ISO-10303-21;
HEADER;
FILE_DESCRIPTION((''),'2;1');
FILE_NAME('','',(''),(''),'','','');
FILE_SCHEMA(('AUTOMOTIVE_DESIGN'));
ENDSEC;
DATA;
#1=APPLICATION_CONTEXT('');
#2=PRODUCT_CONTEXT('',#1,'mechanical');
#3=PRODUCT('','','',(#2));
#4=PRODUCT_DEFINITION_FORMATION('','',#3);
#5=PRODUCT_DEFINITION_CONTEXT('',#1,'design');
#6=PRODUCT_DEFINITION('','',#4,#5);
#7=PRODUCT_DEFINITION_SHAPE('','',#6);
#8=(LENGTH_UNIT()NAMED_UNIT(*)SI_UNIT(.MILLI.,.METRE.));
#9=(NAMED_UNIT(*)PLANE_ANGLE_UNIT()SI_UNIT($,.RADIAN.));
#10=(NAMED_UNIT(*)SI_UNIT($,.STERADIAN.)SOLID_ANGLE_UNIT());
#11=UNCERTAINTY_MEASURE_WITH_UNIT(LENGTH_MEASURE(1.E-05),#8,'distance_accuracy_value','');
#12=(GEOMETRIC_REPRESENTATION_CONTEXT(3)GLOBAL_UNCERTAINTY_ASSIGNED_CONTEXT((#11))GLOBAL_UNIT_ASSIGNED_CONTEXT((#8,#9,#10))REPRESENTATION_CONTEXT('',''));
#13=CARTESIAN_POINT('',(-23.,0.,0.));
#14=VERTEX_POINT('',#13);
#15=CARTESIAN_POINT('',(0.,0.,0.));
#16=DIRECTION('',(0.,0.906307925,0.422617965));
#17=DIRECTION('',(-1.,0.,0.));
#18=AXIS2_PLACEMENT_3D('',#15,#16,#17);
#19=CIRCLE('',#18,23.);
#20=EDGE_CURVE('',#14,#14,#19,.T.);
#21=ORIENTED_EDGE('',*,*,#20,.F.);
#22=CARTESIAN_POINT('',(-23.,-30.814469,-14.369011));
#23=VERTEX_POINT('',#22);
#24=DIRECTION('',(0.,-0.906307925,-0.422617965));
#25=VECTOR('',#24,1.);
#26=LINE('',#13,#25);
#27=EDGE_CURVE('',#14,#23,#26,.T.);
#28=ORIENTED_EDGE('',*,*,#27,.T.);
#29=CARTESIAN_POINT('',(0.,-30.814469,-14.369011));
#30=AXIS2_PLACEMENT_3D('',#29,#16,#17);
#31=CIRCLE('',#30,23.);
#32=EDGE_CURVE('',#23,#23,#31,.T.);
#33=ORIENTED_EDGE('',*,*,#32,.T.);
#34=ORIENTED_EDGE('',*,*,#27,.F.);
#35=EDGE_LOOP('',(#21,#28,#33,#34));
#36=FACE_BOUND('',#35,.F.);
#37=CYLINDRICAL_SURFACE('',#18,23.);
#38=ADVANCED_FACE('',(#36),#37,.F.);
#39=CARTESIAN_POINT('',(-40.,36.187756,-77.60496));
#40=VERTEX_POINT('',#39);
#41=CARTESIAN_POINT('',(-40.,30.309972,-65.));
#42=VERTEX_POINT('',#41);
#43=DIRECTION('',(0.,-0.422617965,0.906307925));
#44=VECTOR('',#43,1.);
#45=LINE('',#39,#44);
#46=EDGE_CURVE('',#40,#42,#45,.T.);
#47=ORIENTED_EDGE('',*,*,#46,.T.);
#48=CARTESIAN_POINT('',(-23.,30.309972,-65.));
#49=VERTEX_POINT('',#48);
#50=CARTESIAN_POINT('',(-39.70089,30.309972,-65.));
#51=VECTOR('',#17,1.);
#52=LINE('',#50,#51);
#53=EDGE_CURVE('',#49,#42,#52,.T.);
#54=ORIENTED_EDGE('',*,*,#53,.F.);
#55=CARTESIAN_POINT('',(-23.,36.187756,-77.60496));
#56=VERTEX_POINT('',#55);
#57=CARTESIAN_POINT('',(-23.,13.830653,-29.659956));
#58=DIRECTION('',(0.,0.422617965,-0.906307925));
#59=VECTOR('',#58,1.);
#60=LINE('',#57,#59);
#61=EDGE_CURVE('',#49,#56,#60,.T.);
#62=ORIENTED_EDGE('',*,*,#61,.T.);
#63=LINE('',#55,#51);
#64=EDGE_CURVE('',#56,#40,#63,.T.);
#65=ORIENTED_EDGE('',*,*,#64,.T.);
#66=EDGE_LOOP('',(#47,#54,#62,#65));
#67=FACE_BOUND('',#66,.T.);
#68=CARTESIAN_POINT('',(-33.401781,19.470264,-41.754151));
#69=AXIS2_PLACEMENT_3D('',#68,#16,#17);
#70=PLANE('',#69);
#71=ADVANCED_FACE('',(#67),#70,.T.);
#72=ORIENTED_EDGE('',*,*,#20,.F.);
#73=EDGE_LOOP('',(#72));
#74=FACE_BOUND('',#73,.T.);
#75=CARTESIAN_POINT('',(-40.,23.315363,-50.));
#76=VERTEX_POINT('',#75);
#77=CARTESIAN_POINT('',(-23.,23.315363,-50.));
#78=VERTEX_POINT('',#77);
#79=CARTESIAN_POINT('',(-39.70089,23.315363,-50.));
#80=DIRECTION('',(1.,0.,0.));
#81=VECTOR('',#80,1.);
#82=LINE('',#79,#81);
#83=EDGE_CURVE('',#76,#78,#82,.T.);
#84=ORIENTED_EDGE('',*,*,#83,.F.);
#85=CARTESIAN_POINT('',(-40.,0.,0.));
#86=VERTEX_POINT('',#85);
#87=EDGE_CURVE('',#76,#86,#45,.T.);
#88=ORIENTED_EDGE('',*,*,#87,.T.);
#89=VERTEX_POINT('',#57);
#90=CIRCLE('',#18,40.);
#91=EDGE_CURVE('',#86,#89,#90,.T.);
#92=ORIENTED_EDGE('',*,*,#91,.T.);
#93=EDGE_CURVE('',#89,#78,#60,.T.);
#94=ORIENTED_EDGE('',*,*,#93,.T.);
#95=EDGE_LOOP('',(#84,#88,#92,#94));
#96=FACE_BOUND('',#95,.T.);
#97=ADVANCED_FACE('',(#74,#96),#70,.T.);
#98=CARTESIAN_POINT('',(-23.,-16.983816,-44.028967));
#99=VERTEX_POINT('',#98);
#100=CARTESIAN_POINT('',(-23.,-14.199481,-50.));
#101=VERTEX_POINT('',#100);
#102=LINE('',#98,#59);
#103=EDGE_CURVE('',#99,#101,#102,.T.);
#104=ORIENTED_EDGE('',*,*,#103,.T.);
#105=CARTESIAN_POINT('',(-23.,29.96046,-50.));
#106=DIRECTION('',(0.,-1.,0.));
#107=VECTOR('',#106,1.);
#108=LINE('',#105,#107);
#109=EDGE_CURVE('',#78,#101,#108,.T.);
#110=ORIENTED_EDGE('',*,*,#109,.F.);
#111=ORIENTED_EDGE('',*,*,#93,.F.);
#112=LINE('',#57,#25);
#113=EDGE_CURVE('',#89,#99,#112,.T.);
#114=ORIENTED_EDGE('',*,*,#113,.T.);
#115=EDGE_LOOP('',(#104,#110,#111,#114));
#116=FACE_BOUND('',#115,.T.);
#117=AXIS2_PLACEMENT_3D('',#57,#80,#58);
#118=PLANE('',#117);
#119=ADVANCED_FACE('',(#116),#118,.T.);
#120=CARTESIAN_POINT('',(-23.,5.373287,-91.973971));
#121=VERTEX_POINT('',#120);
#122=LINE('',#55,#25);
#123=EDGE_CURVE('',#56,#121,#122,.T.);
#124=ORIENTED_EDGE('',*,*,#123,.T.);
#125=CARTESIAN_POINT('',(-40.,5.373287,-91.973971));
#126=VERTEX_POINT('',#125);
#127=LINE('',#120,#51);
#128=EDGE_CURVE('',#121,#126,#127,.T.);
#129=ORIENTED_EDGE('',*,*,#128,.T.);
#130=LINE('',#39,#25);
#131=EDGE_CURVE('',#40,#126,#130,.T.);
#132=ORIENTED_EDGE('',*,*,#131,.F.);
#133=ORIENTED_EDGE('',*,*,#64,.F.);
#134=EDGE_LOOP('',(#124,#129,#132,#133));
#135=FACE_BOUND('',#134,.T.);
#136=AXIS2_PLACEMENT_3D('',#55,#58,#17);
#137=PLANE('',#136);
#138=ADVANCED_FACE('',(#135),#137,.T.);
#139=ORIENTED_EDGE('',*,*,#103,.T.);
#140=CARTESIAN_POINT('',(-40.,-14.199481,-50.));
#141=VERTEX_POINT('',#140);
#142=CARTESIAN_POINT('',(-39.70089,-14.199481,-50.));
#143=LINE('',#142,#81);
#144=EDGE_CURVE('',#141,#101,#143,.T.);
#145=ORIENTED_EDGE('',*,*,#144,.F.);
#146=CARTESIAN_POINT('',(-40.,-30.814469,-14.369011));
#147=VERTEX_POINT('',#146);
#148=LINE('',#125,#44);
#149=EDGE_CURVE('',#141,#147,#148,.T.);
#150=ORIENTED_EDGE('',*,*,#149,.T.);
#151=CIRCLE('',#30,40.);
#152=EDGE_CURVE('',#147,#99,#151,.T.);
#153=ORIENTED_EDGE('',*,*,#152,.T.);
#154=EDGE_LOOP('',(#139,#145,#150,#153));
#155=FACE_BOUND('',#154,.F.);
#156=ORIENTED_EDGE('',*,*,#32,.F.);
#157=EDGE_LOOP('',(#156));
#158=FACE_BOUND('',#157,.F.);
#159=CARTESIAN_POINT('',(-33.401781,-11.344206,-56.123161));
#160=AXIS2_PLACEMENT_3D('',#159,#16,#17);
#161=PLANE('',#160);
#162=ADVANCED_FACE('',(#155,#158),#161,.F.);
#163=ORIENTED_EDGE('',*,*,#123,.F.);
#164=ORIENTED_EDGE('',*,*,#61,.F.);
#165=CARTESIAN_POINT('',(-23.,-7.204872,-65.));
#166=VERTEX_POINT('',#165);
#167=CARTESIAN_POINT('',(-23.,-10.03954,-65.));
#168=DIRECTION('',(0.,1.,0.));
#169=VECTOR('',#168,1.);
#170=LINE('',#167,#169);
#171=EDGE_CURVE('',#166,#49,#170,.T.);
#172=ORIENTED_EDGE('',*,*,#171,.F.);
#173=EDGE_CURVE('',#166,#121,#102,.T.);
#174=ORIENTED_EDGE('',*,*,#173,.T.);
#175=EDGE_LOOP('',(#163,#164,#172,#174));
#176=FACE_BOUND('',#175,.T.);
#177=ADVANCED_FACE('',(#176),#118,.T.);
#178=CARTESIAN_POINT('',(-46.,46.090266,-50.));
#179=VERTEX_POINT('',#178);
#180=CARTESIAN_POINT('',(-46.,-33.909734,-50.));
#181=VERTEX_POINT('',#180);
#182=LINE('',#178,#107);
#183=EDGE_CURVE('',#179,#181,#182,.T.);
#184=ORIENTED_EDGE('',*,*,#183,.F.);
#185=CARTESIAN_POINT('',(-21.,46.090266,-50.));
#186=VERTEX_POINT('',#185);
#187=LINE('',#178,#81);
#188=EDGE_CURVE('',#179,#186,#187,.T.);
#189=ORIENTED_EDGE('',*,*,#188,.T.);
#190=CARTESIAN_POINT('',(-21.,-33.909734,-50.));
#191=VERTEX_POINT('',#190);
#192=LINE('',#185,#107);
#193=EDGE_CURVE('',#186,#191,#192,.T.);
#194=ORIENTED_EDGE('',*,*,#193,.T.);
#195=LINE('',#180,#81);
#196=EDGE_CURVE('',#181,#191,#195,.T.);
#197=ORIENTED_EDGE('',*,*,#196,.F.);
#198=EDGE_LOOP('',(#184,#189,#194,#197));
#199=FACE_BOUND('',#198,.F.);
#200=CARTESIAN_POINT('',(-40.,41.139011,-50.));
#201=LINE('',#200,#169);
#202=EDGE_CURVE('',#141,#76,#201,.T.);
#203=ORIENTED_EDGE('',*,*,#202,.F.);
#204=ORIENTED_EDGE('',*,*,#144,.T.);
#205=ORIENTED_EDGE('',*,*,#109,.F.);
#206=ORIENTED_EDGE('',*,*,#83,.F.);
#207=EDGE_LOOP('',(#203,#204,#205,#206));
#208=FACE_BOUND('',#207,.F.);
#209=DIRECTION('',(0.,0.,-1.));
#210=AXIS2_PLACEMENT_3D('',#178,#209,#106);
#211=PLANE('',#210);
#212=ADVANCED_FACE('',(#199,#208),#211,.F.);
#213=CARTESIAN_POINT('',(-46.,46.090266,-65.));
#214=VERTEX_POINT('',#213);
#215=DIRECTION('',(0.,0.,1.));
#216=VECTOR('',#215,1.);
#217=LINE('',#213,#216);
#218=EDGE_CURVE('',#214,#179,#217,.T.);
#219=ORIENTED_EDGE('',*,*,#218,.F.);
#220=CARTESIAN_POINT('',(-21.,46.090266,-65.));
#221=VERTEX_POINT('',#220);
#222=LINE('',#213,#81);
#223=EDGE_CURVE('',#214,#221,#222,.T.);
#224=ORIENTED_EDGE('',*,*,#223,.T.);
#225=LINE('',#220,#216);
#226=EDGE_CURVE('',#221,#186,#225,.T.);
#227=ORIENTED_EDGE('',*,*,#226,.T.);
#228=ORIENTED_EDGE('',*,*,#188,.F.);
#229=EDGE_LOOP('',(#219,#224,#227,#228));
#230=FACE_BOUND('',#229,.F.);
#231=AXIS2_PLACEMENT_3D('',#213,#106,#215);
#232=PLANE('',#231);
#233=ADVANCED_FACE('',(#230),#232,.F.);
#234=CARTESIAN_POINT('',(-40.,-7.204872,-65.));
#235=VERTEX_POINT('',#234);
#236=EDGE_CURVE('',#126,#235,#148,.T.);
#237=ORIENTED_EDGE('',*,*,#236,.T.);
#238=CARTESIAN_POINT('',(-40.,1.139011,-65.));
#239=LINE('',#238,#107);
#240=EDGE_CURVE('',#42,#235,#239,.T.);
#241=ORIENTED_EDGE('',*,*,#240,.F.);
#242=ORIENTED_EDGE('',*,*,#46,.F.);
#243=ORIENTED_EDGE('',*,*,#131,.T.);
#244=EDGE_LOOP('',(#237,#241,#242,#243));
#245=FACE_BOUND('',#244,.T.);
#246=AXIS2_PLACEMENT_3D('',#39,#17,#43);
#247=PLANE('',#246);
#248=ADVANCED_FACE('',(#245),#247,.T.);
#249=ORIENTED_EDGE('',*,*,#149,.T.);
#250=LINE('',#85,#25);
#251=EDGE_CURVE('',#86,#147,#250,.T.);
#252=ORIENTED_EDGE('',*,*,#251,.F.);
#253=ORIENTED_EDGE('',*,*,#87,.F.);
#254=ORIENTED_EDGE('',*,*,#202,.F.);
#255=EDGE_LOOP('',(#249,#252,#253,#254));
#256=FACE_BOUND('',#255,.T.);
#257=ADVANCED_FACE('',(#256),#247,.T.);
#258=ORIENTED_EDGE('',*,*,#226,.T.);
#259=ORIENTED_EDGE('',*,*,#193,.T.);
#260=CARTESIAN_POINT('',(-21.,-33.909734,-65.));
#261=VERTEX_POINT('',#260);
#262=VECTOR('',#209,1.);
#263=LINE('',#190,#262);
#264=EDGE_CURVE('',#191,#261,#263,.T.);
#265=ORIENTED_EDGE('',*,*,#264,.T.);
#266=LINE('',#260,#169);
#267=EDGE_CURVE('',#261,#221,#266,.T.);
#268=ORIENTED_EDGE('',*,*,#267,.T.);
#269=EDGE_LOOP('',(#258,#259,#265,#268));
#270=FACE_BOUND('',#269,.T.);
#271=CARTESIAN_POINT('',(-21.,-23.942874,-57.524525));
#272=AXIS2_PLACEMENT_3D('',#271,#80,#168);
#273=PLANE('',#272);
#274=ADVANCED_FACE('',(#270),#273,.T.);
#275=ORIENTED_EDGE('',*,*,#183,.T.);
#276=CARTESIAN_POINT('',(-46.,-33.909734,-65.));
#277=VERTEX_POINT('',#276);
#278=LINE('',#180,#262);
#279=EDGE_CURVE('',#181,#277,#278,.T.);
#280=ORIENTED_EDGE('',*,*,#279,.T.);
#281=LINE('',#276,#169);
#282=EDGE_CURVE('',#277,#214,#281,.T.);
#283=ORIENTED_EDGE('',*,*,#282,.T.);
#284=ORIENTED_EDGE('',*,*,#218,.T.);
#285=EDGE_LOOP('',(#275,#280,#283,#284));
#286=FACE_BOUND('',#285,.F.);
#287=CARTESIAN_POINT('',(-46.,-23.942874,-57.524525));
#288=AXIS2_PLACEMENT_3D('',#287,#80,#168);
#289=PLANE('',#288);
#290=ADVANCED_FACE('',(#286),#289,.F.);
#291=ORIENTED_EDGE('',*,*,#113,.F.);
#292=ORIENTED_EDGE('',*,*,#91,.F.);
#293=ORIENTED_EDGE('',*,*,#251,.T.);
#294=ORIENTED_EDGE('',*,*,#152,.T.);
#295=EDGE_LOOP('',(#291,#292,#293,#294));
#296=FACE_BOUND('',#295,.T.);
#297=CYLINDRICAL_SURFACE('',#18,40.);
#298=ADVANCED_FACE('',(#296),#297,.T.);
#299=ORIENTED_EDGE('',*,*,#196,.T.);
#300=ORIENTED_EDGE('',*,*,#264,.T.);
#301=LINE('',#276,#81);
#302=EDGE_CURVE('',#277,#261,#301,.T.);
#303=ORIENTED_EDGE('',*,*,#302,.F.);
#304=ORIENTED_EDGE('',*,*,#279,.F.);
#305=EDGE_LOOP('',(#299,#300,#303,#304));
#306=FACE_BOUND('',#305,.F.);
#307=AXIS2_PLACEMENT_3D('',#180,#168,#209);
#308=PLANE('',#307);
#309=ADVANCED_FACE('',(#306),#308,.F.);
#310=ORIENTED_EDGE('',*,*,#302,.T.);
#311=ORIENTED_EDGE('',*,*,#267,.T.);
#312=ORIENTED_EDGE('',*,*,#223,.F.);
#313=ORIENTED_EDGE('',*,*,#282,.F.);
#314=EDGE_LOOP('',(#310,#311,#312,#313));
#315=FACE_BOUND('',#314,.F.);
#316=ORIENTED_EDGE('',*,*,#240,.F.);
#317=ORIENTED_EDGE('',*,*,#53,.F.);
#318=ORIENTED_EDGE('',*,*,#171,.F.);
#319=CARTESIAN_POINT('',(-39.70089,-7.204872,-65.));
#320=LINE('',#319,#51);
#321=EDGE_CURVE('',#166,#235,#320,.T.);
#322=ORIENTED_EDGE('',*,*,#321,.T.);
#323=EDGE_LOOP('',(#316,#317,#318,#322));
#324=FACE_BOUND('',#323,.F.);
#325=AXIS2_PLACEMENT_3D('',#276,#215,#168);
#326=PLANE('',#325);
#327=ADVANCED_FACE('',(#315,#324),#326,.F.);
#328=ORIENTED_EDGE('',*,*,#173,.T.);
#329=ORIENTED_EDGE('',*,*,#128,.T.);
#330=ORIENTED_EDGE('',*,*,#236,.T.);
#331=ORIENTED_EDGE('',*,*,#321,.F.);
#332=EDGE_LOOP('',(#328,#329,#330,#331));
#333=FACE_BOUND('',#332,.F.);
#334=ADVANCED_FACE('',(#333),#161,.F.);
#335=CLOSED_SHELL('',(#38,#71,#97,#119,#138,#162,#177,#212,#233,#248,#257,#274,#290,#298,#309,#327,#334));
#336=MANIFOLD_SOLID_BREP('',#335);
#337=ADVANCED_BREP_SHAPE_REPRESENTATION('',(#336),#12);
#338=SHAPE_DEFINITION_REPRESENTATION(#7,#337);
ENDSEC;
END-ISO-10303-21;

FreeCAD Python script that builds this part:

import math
import FreeCAD as App
import Part
import Sketcher

V = App.Vector

doc = App.newDocument("Part")
body = doc.addObject("PartDesign::Body", "Body")

# Sketch on an angled plane
sketch1 = doc.addObject("Sketcher::SketchObject", "Sketch")
body.addObject(sketch1)
sketch1.Placement = App.Placement(V(0, 0, 0), App.Rotation(V(-1, 0, 0), V(0, -0.422617965, 0.906307925), V(0, 0.906307925, 0.422617965), "ZXY"))
sketch1.addGeometry([
    Part.Circle(V(0, 0, 0), V(0, 0, 1), 40),
    Part.Circle(V(0, 0, 0), V(0, 0, 1), 23),
], False)
sketch1.addConstraint([
    Sketcher.Constraint("Coincident", 0, 3, -1, 1),
    Sketcher.Constraint("Coincident", 1, 3, -1, 1),
    Sketcher.Constraint("Diameter", 0, 80.0),
    Sketcher.Constraint("Diameter", 1, 46.0),
])
pad1 = doc.addObject("PartDesign::Pad", "Pad")
body.addObject(pad1)
pad1.Profile = sketch1
pad1.Length = 34
pad1.Reversed = True
body2 = doc.addObject("PartDesign::Body", "Body001")

# Sketch on YZ plane
sketch2 = doc.addObject("Sketcher::SketchObject", "Sketch001")
body2.addObject(sketch2)
sketch2.AttachmentSupport = (doc.getObject("YZ_Plane001"), [""])
sketch2.MapMode = "FlatFace"
sketch2.AttachmentOffset = App.Placement(V(0, 0, -46), App.Rotation())
sketch2.addGeometry([
    Part.LineSegment(V(-34, -50, 0), V(-34, -65, 0)),
    Part.LineSegment(V(-34, -65, 0), V(46, -65, 0)),
    Part.LineSegment(V(46, -65, 0), V(46, -50, 0)),
    Part.LineSegment(V(46, -50, 0), V(-34, -50, 0)),
], False)
sketch2.addConstraint([
    Sketcher.Constraint("Coincident", 0, 2, 1, 1),
    Sketcher.Constraint("Coincident", 1, 2, 2, 1),
    Sketcher.Constraint("Coincident", 2, 2, 3, 1),
    Sketcher.Constraint("Coincident", 3, 2, 0, 1),
    Sketcher.Constraint("Vertical", 0),
    Sketcher.Constraint("Horizontal", 1),
    Sketcher.Constraint("Vertical", 2),
    Sketcher.Constraint("Horizontal", 3),
    Sketcher.Constraint("DistanceX", 1, 1, 1, 2, 80.0),
    Sketcher.Constraint("DistanceY", 0, 2, 0, 1, 15.0),
    Sketcher.Constraint("DistanceY", 0, 2, -1, 1, 65.0),
    Sketcher.Constraint("DistanceX", 0, 2, -1, 1, 33.909734),
])
pad2 = doc.addObject("PartDesign::Pad", "Pad001")
body2.addObject(pad2)
pad2.Profile = sketch2
pad2.Length = 25
body.AllowCompound = True
doc.recompute()

boolean = doc.addObject("PartDesign::Boolean", "Boolean")
body.addObject(boolean)
boolean.Type = "Fuse"
boolean.addObjects([body2])

# Sketch on an angled plane
sketch3 = doc.addObject("Sketcher::SketchObject", "Sketch002")
body.addObject(sketch3)
sketch3.Placement = App.Placement(V(0, 0, 0), App.Rotation(V(-1, 0, 0), V(0, -0.422617965, 0.906307925), V(0, 0.906307925, 0.422617965), "ZXY"))
sketch3.addGeometry([
    Part.LineSegment(V(40, -86, 0), V(40, 0, 0)),
    Part.ArcOfCircle(Part.Circle(V(0, 0, 0), V(0, 0, 1), 40), math.radians(-55), math.radians(0)),
    Part.LineSegment(V(23, -33, 0), V(23, -86, 0)),
    Part.LineSegment(V(23, -86, 0), V(40, -86, 0)),
], False)
sketch3.addConstraint([
    Sketcher.Constraint("Tangent", 0, 2, 1, 2),
    Sketcher.Constraint("Coincident", 1, 1, 2, 1),
    Sketcher.Constraint("Coincident", 2, 2, 3, 1),
    Sketcher.Constraint("Coincident", 3, 2, 0, 1),
    Sketcher.Constraint("Vertical", 0),
    Sketcher.Constraint("Vertical", 2),
    Sketcher.Constraint("Horizontal", 3),
    Sketcher.Constraint("Coincident", 1, 3, -1, 1),
    Sketcher.Constraint("DistanceX", 3, 1, 3, 2, 17.0),
    Sketcher.Constraint("DistanceX", -1, 1, 0, 2, 40.0),
    Sketcher.Constraint("DistanceY", 2, 2, 2, 1, 52.90145),
])
pad3 = doc.addObject("PartDesign::Pad", "Pad002")
body.addObject(pad3)
pad3.Profile = sketch3
pad3.Length = 34
pad3.Reversed = True

doc.recompute()
